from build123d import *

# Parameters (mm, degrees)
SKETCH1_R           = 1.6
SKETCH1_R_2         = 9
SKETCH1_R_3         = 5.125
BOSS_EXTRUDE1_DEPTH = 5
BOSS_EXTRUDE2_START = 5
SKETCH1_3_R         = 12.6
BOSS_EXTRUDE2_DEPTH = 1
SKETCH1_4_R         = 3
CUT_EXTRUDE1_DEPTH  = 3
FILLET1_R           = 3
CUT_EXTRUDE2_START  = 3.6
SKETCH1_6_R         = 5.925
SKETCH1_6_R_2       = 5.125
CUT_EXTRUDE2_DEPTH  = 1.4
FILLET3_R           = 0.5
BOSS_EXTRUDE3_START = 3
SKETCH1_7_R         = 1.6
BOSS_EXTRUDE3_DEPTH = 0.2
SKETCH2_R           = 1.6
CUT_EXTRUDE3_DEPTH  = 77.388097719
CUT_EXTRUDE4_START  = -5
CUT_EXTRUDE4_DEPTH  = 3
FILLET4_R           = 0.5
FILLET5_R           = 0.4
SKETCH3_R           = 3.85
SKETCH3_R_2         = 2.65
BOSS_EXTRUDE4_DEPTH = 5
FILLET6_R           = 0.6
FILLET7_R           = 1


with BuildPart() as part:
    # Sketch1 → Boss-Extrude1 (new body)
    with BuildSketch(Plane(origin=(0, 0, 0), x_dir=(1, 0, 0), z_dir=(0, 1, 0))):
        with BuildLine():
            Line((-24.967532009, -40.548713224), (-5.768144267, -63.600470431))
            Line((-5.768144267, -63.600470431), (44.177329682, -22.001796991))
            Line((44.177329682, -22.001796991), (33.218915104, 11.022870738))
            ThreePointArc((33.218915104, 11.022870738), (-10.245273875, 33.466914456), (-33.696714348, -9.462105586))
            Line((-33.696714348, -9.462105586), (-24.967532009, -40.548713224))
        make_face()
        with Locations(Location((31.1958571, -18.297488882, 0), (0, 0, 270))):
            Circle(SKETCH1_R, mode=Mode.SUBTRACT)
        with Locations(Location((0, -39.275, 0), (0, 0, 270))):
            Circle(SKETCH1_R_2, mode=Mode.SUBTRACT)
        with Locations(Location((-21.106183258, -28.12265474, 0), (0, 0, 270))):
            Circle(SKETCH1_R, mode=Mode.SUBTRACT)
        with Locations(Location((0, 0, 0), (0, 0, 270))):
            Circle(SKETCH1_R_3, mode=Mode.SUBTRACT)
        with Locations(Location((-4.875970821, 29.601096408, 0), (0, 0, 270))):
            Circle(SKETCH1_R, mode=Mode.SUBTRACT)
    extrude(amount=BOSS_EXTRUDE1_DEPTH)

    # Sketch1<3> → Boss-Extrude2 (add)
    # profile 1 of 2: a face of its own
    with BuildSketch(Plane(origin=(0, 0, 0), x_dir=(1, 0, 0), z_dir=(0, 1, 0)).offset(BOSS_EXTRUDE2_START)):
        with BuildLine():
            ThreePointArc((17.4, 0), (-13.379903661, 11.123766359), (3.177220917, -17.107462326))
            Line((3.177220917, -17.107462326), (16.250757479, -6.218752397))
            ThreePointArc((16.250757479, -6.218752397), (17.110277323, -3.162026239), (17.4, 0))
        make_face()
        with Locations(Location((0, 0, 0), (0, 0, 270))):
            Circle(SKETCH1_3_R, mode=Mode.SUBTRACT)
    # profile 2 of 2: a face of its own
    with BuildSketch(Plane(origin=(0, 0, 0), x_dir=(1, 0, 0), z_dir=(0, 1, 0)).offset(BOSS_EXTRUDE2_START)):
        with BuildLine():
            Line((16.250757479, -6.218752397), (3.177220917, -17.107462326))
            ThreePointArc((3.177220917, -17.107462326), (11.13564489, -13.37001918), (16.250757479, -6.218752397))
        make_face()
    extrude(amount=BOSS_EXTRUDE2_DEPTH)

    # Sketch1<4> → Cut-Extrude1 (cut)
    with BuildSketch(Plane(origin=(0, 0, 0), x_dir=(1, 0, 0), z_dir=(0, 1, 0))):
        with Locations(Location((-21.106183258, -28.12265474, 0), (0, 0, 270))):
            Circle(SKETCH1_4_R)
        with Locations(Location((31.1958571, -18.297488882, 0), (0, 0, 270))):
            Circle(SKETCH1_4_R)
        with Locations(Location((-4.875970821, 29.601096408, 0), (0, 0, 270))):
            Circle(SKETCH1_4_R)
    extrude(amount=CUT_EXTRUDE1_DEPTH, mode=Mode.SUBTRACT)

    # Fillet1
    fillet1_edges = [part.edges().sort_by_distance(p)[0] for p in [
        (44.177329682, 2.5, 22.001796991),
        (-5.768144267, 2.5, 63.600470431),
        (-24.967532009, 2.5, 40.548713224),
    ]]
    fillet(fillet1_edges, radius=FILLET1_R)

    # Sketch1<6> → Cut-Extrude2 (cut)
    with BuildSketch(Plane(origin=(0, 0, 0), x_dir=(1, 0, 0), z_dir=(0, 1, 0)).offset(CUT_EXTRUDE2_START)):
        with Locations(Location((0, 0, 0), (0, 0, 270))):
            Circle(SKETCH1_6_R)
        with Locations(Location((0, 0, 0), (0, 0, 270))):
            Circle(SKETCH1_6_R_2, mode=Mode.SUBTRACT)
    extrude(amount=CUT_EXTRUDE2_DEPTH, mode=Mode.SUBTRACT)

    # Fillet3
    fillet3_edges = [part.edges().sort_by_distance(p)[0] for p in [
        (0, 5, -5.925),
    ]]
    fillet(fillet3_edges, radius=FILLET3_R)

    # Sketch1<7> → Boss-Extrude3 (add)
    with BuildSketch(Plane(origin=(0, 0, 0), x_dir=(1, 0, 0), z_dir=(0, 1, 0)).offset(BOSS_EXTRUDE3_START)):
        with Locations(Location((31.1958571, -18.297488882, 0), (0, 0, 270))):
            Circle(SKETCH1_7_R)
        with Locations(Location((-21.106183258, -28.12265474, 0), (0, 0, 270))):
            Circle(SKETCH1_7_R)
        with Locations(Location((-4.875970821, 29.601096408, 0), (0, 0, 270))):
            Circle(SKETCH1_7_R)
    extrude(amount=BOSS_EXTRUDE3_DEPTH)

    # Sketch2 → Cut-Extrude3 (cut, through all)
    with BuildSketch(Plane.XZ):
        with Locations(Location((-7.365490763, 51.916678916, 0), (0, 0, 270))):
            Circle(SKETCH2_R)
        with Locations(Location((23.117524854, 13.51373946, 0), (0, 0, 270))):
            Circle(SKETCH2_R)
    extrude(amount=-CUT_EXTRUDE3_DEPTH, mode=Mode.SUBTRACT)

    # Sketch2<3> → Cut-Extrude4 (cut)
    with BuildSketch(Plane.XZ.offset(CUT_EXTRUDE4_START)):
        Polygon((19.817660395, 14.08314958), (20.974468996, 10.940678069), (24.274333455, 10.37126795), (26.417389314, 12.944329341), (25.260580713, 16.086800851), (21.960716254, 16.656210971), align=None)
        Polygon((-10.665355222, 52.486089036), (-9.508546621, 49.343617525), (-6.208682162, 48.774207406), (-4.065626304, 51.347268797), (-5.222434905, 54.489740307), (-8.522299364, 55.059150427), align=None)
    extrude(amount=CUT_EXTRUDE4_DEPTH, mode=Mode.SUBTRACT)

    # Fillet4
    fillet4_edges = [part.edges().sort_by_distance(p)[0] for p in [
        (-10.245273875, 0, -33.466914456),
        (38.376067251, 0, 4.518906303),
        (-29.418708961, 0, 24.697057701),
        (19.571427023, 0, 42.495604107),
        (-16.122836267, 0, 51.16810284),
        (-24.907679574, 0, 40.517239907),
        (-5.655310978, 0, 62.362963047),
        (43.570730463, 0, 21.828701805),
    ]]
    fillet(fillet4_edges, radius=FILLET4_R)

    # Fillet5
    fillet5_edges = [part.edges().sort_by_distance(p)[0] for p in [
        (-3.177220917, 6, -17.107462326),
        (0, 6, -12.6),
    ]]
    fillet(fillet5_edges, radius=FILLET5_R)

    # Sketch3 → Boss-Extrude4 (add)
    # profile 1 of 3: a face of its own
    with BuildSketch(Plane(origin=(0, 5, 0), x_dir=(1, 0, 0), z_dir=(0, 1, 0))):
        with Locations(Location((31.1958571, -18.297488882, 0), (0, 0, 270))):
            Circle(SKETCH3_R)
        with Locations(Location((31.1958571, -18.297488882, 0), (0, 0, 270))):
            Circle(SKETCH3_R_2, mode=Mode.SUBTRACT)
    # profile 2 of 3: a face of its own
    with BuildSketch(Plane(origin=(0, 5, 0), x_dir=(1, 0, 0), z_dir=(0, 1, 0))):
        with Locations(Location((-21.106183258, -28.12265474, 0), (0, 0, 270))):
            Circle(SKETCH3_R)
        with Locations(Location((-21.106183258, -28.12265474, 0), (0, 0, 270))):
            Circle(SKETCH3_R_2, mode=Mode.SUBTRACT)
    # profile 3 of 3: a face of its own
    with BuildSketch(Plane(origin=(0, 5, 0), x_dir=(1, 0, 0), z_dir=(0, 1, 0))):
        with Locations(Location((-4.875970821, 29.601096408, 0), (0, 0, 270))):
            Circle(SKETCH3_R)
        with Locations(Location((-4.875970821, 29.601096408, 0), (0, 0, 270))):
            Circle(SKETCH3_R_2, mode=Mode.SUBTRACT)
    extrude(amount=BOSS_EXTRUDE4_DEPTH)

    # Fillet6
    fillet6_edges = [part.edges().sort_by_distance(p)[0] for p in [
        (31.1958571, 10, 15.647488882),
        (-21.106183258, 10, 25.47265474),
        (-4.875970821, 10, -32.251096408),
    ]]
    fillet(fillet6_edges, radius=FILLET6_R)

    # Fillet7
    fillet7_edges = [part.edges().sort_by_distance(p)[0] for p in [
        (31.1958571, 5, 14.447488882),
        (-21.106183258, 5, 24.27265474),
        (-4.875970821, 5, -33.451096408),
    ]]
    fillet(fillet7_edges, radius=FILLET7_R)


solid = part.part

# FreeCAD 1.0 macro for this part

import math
import FreeCAD as App
import Part
import Sketcher

V = App.Vector
Q = App.Units.Quantity


def edges_at(feature, points):
    """Names of the edges that pass closest to the given points."""
    edges = feature.Shape.Edges
    near = lambda p: min(range(len(edges)), key=lambda i: edges[i].distToShape(Part.Vertex(*p))[0])
    return sorted({f"Edge{near(p) + 1}" for p in points})

doc = App.newDocument("Part")
body = doc.addObject("PartDesign::Body", "Body")

sketch1 = body.newObject("Sketcher::SketchObject", "Sketch")
sketch1.AttachmentSupport = (doc.getObject("XZ_Plane"), [""])
sketch1.MapMode = "FlatFace"
sketch1.addGeometry([
    Part.LineSegment(V(-25, 40.5, 0), V(-5.8, 63.6, 0)),
    Part.LineSegment(V(-5.8, 63.6, 0), V(44.2, 22, 0)),
    Part.LineSegment(V(44.2, 22, 0), V(33.2, -11, 0)),
    Part.ArcOfCircle(Part.Circle(V(0, 0, 0), V(0, 0, 1), 35), math.radians(164), math.radians(342)),
    Part.LineSegment(V(-33.7, 9.5, 0), V(-25, 40.5, 0)),
    Part.Circle(V(0, 39.3, 0), V(0, 0, 1), 9),
    Part.Circle(V(-21.1, 28.1, 0), V(0, 0, 1), 1.6),
    Part.Circle(V(31.2, 18.3, 0), V(0, 0, 1), 1.6),
    Part.Circle(V(0, 0, 0), V(0, 0, 1), 5.1),
    Part.Circle(V(-4.9, -29.6, 0), V(0, 0, 1), 1.6),
], False)
sketch1.addConstraint([
    Sketcher.Constraint("Coincident", 0, 2, 1, 1),
    Sketcher.Constraint("Coincident", 1, 2, 2, 1),
    Sketcher.Constraint("Tangent", 2, 2, 3, 2),
    Sketcher.Constraint("Tangent", 3, 1, 4, 1),
    Sketcher.Constraint("Coincident", 4, 2, 0, 1),
    Sketcher.Constraint("Coincident", 3, 3, -1, 1),
    Sketcher.Constraint("Coincident", 8, 3, -1, 1),
    Sketcher.Constraint("Equal", 6, 7),
    Sketcher.Constraint("Equal", 7, 9),
    Sketcher.Constraint("PointOnObject", 5, 3, -2),
    Sketcher.Constraint("Perpendicular", 0, 1),
    Sketcher.Constraint("Diameter", 5, Q("18 mm")),
    Sketcher.Constraint("Radius", 3, Q("35 mm")),
    Sketcher.Constraint("Diameter", 6, Q("3.2 mm")),
    Sketcher.Constraint("Diameter", 8, Q("10.25 mm")),
    Sketcher.Constraint("Distance", 0, Q("30 mm")),
    Sketcher.Constraint("Distance", 1, Q("65 mm")),
    Sketcher.Constraint("DistanceY", -1, 1, 5, 3, Q("39.275 mm")),
    Sketcher.Constraint("DistanceX", 0, 2, 7, 3, Q("36.964001 mm")),
    Sketcher.Constraint("DistanceY", 9, 3, 3, 1, Q("39.063202 mm")),
    Sketcher.Constraint("DistanceY", -1, 1, 7, 3, Q("18.297489 mm")),
    Sketcher.Constraint("DistanceX", 9, 3, -1, 1, Q("4.875971 mm")),
    Sketcher.Constraint("DistanceY", -1, 1, 0, 2, Q("63.60047 mm")),
    Sketcher.Constraint("DistanceX", -1, 1, 1, 2, Q("44.17733 mm")),
    Sketcher.Constraint("DistanceY", 2, 2, -1, 1, Q("11.022871 mm")),
    Sketcher.Constraint("DistanceX", 6, 3, 7, 3, Q("52.30204 mm")),
    Sketcher.Constraint("DistanceY", 9, 3, 6, 3, Q("57.723751 mm")),
])
pad1 = body.newObject("PartDesign::Pad", "Pad")
pad1.Profile = sketch1
pad1.Length = 5
pad1.Reversed = True

sketch2 = body.newObject("Sketcher::SketchObject", "Sketch001")
sketch2.AttachmentSupport = (doc.getObject("XZ_Plane"), [""])
sketch2.MapMode = "FlatFace"
sketch2.AttachmentOffset = App.Placement(V(0, 0, -5), App.Rotation())
sketch2.addGeometry([
    Part.ArcOfCircle(Part.Circle(V(0, 0, 0), V(0, 0, 1), 17), math.radians(79), math.radians(360)),
    Part.ArcOfCircle(Part.Circle(V(0, 0, 0), V(0, 0, 1), 17), math.radians(21), math.radians(79)),
    Part.ArcOfCircle(Part.Circle(V(0, 0, 0), V(0, 0, 1), 17), math.radians(0), math.radians(21)),
    Part.Circle(V(0, 0, 0), V(0, 0, 1), 13),
], False)
sketch2.addConstraint([
    Sketcher.Constraint("Tangent", 0, 1, 1, 2),
    Sketcher.Constraint("Tangent", 1, 1, 2, 2),
    Sketcher.Constraint("Tangent", 2, 1, 0, 2),
    Sketcher.Constraint("Coincident", 0, 3, -1, 1),
    Sketcher.Constraint("Coincident", 3, 3, -1, 1),
    Sketcher.Constraint("PointOnObject", 2, 1, -1),
    Sketcher.Constraint("Diameter", 3, Q("25.2 mm")),
    Sketcher.Constraint("Radius", 0, Q("17.4 mm")),
    Sketcher.Constraint("DistanceX", -1, 1, 0, 1, Q("3.177221 mm")),
    Sketcher.Constraint("DistanceY", 1, 1, 0, 1, Q("10.88871 mm")),
])
pad2 = body.newObject("PartDesign::Pad", "Pad001")
pad2.Profile = sketch2
pad2.Length = 1
pad2.Reversed = True

sketch3 = body.newObject("Sketcher::SketchObject", "Sketch002")
sketch3.AttachmentSupport = (doc.getObject("XZ_Plane"), [""])
sketch3.MapMode = "FlatFace"
sketch3.addGeometry([
    Part.Circle(V(-21.1, 28.1, 0), V(0, 0, 1), 3),
    Part.Circle(V(31.2, 18.3, 0), V(0, 0, 1), 3),
    Part.Circle(V(-4.9, -29.6, 0), V(0, 0, 1), 3),
], False)
sketch3.addConstraint([
    Sketcher.Constraint("Equal", 0, 1),
    Sketcher.Constraint("Equal", 1, 2),
    Sketcher.Constraint("Diameter", 0, Q("6 mm")),
    Sketcher.Constraint("DistanceY", -1, 1, 1, 3, Q("18.297489 mm")),
    Sketcher.Constraint("DistanceX", 2, 3, -1, 1, Q("4.875971 mm")),
    Sketcher.Constraint("DistanceX", 0, 3, 1, 3, Q("52.30204 mm")),
    Sketcher.Constraint("DistanceY", 2, 3, 0, 3, Q("57.723751 mm")),
    Sketcher.Constraint("DistanceX", 0, 3, -1, 1, Q("21.106183 mm")),
    Sketcher.Constraint("DistanceY", -1, 1, 0, 3, Q("28.122655 mm")),
])
pocket1 = body.newObject("PartDesign::Pocket", "Pocket")
pocket1.Profile = sketch3
pocket1.Length = 3
doc.recompute()

fillet = body.newObject("PartDesign::Fillet", "Fillet")
fillet.Base = (pocket1, edges_at(pocket1, [(44.177, 2.5, 22.002), (-5.768, 2.5, 63.6), (-24.968, 2.5, 40.549)]))
fillet.Radius = 3

sketch4 = body.newObject("Sketcher::SketchObject", "Sketch003")
sketch4.AttachmentSupport = (doc.getObject("XZ_Plane"), [""])
sketch4.MapMode = "FlatFace"
sketch4.AttachmentOffset = App.Placement(V(0, 0, -3.6), App.Rotation())
sketch4.addGeometry([
    Part.Circle(V(0, 0, 0), V(0, 0, 1), 6),
    Part.Circle(V(0, 0, 0), V(0, 0, 1), 5),
], False)
sketch4.addConstraint([
    Sketcher.Constraint("Coincident", 0, 3, -1, 1),
    Sketcher.Constraint("Coincident", 1, 3, -1, 1),
    Sketcher.Constraint("Diameter", 0, Q("11.85 mm")),
    Sketcher.Constraint("Diameter", 1, Q("10.25 mm")),
])
pocket2 = body.newObject("PartDesign::Pocket", "Pocket001")
pocket2.Profile = sketch4
pocket2.Length = 1.4
doc.recompute()

fillet2 = body.newObject("PartDesign::Fillet", "Fillet001")
fillet2.Base = (pocket2, edges_at(pocket2, [(0, 5, -5.925)]))
fillet2.Radius = 0.5

sketch5 = body.newObject("Sketcher::SketchObject", "Sketch004")
sketch5.AttachmentSupport = (doc.getObject("XZ_Plane"), [""])
sketch5.MapMode = "FlatFace"
sketch5.AttachmentOffset = App.Placement(V(0, 0, -3), App.Rotation())
sketch5.addGeometry([
    Part.Circle(V(31.2, 18.3, 0), V(0, 0, 1), 1.6),
    Part.Circle(V(-21.1, 28.1, 0), V(0, 0, 1), 1.6),
    Part.Circle(V(-4.9, -29.6, 0), V(0, 0, 1), 1.6),
], False)
sketch5.addConstraint([
    Sketcher.Constraint("Equal", 0, 1),
    Sketcher.Constraint("Equal", 1, 2),
    Sketcher.Constraint("Diameter", 0, Q("3.2 mm")),
    Sketcher.Constraint("DistanceY", -1, 1, 0, 3, Q("18.297489 mm")),
    Sketcher.Constraint("DistanceX", 2, 3, -1, 1, Q("4.875971 mm")),
    Sketcher.Constraint("DistanceX", 1, 3, 0, 3, Q("52.30204 mm")),
    Sketcher.Constraint("DistanceY", 2, 3, 1, 3, Q("57.723751 mm")),
    Sketcher.Constraint("DistanceX", -1, 1, 0, 3, Q("31.195857 mm")),
    Sketcher.Constraint("DistanceY", -1, 1, 1, 3, Q("28.122655 mm")),
])
pad3 = body.newObject("PartDesign::Pad", "Pad002")
pad3.Profile = sketch5
pad3.Length = 0.2
pad3.Reversed = True

sketch6 = body.newObject("Sketcher::SketchObject", "Sketch005")
sketch6.AttachmentSupport = (doc.getObject("XZ_Plane"), [""])
sketch6.MapMode = "FlatFace"
sketch6.addGeometry([
    Part.Circle(V(-7.4, 51.9, 0), V(0, 0, 1), 1.6),
    Part.Circle(V(23.1, 13.5, 0), V(0, 0, 1), 1.6),
], False)
sketch6.addConstraint([
    Sketcher.Constraint("Equal", 0, 1),
    Sketcher.Constraint("Diameter", 0, Q("3.2 mm")),
    Sketcher.Constraint("DistanceX", 0, 3, -1, 1, Q("7.365491 mm")),
    Sketcher.Constraint("DistanceY", -1, 1, 0, 3, Q("51.916679 mm")),
    Sketcher.Constraint("DistanceY", -1, 1, 1, 3, Q("13.513739 mm")),
    Sketcher.Constraint("DistanceX", -1, 1, 1, 3, Q("23.117525 mm")),
])
pocket3 = body.newObject("PartDesign::Pocket", "Pocket002")
pocket3.Profile = sketch6
pocket3.Type = "ThroughAll"

sketch7 = body.newObject("Sketcher::SketchObject", "Sketch006")
sketch7.AttachmentSupport = (doc.getObject("XZ_Plane"), [""])
sketch7.MapMode = "FlatFace"
sketch7.AttachmentOffset = App.Placement(V(0, 0, -5), App.Rotation())
sketch7.addGeometry([
    Part.LineSegment(V(19.8, 14.1, 0), V(21, 10.9, 0)),
    Part.LineSegment(V(21, 10.9, 0), V(24.3, 10.4, 0)),
    Part.LineSegment(V(24.3, 10.4, 0), V(26.4, 12.9, 0)),
    Part.LineSegment(V(26.4, 12.9, 0), V(25.3, 16.1, 0)),
    Part.LineSegment(V(25.3, 16.1, 0), V(22, 16.7, 0)),
    Part.LineSegment(V(22, 16.7, 0), V(19.8, 14.1, 0)),
    Part.LineSegment(V(-10.7, 52.5, 0), V(-9.5, 49.3, 0)),
    Part.LineSegment(V(-9.5, 49.3, 0), V(-6.2, 48.8, 0)),
    Part.LineSegment(V(-6.2, 48.8, 0), V(-4.1, 51.3, 0)),
    Part.LineSegment(V(-4.1, 51.3, 0), V(-5.2, 54.5, 0)),
    Part.LineSegment(V(-5.2, 54.5, 0), V(-8.5, 55.1, 0)),
    Part.LineSegment(V(-8.5, 55.1, 0), V(-10.7, 52.5, 0)),
], False)
sketch7.addConstraint([
    Sketcher.Constraint("Coincident", 0, 2, 1, 1),
    Sketcher.Constraint("Coincident", 1, 2, 2, 1),
    Sketcher.Constraint("Coincident", 2, 2, 3, 1),
    Sketcher.Constraint("Coincident", 3, 2, 4, 1),
    Sketcher.Constraint("Coincident", 4, 2, 5, 1),
    Sketcher.Constraint("Coincident", 5, 2, 0, 1),
    Sketcher.Constraint("Coincident", 6, 2, 7, 1),
    Sketcher.Constraint("Coincident", 7, 2, 8, 1),
    Sketcher.Constraint("Coincident", 8, 2, 9, 1),
    Sketcher.Constraint("Coincident", 9, 2, 10, 1),
    Sketcher.Constraint("Coincident", 10, 2, 11, 1),
    Sketcher.Constraint("Coincident", 11, 2, 6, 1),
    Sketcher.Constraint("Parallel", 0, 3),
    Sketcher.Constraint("Parallel", 1, 4),
    Sketcher.Constraint("Parallel", 2, 5),
    Sketcher.Constraint("Parallel", 3, 6),
    Sketcher.Constraint("Parallel", 4, 7),
    Sketcher.Constraint("Parallel", 5, 8),
    Sketcher.Constraint("Parallel", 6, 9),
    Sketcher.Constraint("Parallel", 7, 10),
    Sketcher.Constraint("Parallel", 8, 11),
    Sketcher.Constraint("Equal", 0, 1),
    Sketcher.Constraint("Equal", 1, 2),
    Sketcher.Constraint("Equal", 2, 3),
    Sketcher.Constraint("Equal", 5, 6),
    Sketcher.Constraint("Equal", 6, 7),
    Sketcher.Constraint("Equal", 7, 8),
    Sketcher.Constraint("Equal", 8, 9),
    Sketcher.Constraint("DistanceY", -1, 1, 3, 2, Q("16.086801 mm")),
    Sketcher.Constraint("DistanceX", 10, 2, -1, 1, Q("8.522299 mm")),
    Sketcher.Constraint("DistanceX", 7, 2, 4, 2, Q("28.169398 mm")),
    Sketcher.Constraint("Distance", 0, Q("3.348632 mm")),
    Sketcher.Constraint("DistanceX", -1, 1, 0, 2, Q("20.974469 mm")),
    Sketcher.Constraint("DistanceY", -1, 1, 0, 2, Q("10.940678 mm")),
    Sketcher.Constraint("DistanceX", -1, 1, 2, 2, Q("26.417389 mm")),
    Sketcher.Constraint("DistanceY", -1, 1, 8, 2, Q("51.347269 mm")),
])
pocket4 = body.newObject("PartDesign::Pocket", "Pocket003")
pocket4.Profile = sketch7
pocket4.Length = 3
pocket4.Reversed = True
doc.recompute()

fillet3 = body.newObject("PartDesign::Fillet", "Fillet002")
fillet3.Base = (pocket4, edges_at(pocket4, [
    (-10.245, 0, -33.467),
    (38.376, 0, 4.519),
    (-29.419, 0, 24.697),
    (19.571, 0, 42.496),
    (-16.123, 0, 51.168),
    (-24.908, 0, 40.517),
    (-5.655, 0, 62.363),
    (43.571, 0, 21.829),
]))
fillet3.Radius = 0.5
doc.recompute()

fillet4 = body.newObject("PartDesign::Fillet", "Fillet003")
fillet4.Base = (fillet3, edges_at(fillet3, [(-13.38, 6, -11.124), (0, 6, -12.6)]))
fillet4.Radius = 0.4

sketch8 = body.newObject("Sketcher::SketchObject", "Sketch007")
sketch8.AttachmentSupport = (doc.getObject("XZ_Plane"), [""])
sketch8.MapMode = "FlatFace"
sketch8.AttachmentOffset = App.Placement(V(0, 0, -5), App.Rotation())
sketch8.addGeometry([
    Part.Circle(V(31.2, 18.3, 0), V(0, 0, 1), 3.9),
    Part.Circle(V(31.2, 18.3, 0), V(0, 0, 1), 2.6),
    Part.Circle(V(-21.1, 28.1, 0), V(0, 0, 1), 3.9),
    Part.Circle(V(-21.1, 28.1, 0), V(0, 0, 1), 2.6),
    Part.Circle(V(-4.9, -29.6, 0), V(0, 0, 1), 3.9),
    Part.Circle(V(-4.9, -29.6, 0), V(0, 0, 1), 2.6),
], False)
sketch8.addConstraint([
    Sketcher.Constraint("Coincident", 1, 3, 0, 3),
    Sketcher.Constraint("Coincident", 3, 3, 2, 3),
    Sketcher.Constraint("Coincident", 5, 3, 4, 3),
    Sketcher.Constraint("Equal", 0, 2),
    Sketcher.Constraint("Equal", 1, 3),
    Sketcher.Constraint("Equal", 2, 4),
    Sketcher.Constraint("Equal", 3, 5),
    Sketcher.Constraint("Diameter", 0, Q("7.7 mm")),
    Sketcher.Constraint("Diameter", 1, Q("5.3 mm")),
    Sketcher.Constraint("DistanceY", -1, 1, 0, 3, Q("18.297489 mm")),
    Sketcher.Constraint("DistanceX", 4, 3, -1, 1, Q("4.875971 mm")),
    Sketcher.Constraint("DistanceX", 2, 3, 0, 3, Q("52.30204 mm")),
    Sketcher.Constraint("DistanceY", 4, 3, 2, 3, Q("57.723751 mm")),
    Sketcher.Constraint("DistanceX", -1, 1, 0, 3, Q("31.195857 mm")),
    Sketcher.Constraint("DistanceY", -1, 1, 2, 3, Q("28.122655 mm")),
])
pad4 = body.newObject("PartDesign::Pad", "Pad003")
pad4.Profile = sketch8
pad4.Length = 5
pad4.Reversed = True
doc.recompute()

fillet5 = body.newObject("PartDesign::Fillet", "Fillet004")
fillet5.Base = (pad4, edges_at(pad4, [(31.196, 10, 15.647), (-21.106, 10, 25.473), (-4.876, 10, -32.251)]))
fillet5.Radius = 0.6
doc.recompute()

fillet6 = body.newObject("PartDesign::Fillet", "Fillet005")
fillet6.Base = (fillet5, edges_at(fillet5, [(31.196, 5, 14.447), (-21.106, 5, 24.273), (-4.876, 5, -33.451)]))
fillet6.Radius = 1

doc.recompute()
